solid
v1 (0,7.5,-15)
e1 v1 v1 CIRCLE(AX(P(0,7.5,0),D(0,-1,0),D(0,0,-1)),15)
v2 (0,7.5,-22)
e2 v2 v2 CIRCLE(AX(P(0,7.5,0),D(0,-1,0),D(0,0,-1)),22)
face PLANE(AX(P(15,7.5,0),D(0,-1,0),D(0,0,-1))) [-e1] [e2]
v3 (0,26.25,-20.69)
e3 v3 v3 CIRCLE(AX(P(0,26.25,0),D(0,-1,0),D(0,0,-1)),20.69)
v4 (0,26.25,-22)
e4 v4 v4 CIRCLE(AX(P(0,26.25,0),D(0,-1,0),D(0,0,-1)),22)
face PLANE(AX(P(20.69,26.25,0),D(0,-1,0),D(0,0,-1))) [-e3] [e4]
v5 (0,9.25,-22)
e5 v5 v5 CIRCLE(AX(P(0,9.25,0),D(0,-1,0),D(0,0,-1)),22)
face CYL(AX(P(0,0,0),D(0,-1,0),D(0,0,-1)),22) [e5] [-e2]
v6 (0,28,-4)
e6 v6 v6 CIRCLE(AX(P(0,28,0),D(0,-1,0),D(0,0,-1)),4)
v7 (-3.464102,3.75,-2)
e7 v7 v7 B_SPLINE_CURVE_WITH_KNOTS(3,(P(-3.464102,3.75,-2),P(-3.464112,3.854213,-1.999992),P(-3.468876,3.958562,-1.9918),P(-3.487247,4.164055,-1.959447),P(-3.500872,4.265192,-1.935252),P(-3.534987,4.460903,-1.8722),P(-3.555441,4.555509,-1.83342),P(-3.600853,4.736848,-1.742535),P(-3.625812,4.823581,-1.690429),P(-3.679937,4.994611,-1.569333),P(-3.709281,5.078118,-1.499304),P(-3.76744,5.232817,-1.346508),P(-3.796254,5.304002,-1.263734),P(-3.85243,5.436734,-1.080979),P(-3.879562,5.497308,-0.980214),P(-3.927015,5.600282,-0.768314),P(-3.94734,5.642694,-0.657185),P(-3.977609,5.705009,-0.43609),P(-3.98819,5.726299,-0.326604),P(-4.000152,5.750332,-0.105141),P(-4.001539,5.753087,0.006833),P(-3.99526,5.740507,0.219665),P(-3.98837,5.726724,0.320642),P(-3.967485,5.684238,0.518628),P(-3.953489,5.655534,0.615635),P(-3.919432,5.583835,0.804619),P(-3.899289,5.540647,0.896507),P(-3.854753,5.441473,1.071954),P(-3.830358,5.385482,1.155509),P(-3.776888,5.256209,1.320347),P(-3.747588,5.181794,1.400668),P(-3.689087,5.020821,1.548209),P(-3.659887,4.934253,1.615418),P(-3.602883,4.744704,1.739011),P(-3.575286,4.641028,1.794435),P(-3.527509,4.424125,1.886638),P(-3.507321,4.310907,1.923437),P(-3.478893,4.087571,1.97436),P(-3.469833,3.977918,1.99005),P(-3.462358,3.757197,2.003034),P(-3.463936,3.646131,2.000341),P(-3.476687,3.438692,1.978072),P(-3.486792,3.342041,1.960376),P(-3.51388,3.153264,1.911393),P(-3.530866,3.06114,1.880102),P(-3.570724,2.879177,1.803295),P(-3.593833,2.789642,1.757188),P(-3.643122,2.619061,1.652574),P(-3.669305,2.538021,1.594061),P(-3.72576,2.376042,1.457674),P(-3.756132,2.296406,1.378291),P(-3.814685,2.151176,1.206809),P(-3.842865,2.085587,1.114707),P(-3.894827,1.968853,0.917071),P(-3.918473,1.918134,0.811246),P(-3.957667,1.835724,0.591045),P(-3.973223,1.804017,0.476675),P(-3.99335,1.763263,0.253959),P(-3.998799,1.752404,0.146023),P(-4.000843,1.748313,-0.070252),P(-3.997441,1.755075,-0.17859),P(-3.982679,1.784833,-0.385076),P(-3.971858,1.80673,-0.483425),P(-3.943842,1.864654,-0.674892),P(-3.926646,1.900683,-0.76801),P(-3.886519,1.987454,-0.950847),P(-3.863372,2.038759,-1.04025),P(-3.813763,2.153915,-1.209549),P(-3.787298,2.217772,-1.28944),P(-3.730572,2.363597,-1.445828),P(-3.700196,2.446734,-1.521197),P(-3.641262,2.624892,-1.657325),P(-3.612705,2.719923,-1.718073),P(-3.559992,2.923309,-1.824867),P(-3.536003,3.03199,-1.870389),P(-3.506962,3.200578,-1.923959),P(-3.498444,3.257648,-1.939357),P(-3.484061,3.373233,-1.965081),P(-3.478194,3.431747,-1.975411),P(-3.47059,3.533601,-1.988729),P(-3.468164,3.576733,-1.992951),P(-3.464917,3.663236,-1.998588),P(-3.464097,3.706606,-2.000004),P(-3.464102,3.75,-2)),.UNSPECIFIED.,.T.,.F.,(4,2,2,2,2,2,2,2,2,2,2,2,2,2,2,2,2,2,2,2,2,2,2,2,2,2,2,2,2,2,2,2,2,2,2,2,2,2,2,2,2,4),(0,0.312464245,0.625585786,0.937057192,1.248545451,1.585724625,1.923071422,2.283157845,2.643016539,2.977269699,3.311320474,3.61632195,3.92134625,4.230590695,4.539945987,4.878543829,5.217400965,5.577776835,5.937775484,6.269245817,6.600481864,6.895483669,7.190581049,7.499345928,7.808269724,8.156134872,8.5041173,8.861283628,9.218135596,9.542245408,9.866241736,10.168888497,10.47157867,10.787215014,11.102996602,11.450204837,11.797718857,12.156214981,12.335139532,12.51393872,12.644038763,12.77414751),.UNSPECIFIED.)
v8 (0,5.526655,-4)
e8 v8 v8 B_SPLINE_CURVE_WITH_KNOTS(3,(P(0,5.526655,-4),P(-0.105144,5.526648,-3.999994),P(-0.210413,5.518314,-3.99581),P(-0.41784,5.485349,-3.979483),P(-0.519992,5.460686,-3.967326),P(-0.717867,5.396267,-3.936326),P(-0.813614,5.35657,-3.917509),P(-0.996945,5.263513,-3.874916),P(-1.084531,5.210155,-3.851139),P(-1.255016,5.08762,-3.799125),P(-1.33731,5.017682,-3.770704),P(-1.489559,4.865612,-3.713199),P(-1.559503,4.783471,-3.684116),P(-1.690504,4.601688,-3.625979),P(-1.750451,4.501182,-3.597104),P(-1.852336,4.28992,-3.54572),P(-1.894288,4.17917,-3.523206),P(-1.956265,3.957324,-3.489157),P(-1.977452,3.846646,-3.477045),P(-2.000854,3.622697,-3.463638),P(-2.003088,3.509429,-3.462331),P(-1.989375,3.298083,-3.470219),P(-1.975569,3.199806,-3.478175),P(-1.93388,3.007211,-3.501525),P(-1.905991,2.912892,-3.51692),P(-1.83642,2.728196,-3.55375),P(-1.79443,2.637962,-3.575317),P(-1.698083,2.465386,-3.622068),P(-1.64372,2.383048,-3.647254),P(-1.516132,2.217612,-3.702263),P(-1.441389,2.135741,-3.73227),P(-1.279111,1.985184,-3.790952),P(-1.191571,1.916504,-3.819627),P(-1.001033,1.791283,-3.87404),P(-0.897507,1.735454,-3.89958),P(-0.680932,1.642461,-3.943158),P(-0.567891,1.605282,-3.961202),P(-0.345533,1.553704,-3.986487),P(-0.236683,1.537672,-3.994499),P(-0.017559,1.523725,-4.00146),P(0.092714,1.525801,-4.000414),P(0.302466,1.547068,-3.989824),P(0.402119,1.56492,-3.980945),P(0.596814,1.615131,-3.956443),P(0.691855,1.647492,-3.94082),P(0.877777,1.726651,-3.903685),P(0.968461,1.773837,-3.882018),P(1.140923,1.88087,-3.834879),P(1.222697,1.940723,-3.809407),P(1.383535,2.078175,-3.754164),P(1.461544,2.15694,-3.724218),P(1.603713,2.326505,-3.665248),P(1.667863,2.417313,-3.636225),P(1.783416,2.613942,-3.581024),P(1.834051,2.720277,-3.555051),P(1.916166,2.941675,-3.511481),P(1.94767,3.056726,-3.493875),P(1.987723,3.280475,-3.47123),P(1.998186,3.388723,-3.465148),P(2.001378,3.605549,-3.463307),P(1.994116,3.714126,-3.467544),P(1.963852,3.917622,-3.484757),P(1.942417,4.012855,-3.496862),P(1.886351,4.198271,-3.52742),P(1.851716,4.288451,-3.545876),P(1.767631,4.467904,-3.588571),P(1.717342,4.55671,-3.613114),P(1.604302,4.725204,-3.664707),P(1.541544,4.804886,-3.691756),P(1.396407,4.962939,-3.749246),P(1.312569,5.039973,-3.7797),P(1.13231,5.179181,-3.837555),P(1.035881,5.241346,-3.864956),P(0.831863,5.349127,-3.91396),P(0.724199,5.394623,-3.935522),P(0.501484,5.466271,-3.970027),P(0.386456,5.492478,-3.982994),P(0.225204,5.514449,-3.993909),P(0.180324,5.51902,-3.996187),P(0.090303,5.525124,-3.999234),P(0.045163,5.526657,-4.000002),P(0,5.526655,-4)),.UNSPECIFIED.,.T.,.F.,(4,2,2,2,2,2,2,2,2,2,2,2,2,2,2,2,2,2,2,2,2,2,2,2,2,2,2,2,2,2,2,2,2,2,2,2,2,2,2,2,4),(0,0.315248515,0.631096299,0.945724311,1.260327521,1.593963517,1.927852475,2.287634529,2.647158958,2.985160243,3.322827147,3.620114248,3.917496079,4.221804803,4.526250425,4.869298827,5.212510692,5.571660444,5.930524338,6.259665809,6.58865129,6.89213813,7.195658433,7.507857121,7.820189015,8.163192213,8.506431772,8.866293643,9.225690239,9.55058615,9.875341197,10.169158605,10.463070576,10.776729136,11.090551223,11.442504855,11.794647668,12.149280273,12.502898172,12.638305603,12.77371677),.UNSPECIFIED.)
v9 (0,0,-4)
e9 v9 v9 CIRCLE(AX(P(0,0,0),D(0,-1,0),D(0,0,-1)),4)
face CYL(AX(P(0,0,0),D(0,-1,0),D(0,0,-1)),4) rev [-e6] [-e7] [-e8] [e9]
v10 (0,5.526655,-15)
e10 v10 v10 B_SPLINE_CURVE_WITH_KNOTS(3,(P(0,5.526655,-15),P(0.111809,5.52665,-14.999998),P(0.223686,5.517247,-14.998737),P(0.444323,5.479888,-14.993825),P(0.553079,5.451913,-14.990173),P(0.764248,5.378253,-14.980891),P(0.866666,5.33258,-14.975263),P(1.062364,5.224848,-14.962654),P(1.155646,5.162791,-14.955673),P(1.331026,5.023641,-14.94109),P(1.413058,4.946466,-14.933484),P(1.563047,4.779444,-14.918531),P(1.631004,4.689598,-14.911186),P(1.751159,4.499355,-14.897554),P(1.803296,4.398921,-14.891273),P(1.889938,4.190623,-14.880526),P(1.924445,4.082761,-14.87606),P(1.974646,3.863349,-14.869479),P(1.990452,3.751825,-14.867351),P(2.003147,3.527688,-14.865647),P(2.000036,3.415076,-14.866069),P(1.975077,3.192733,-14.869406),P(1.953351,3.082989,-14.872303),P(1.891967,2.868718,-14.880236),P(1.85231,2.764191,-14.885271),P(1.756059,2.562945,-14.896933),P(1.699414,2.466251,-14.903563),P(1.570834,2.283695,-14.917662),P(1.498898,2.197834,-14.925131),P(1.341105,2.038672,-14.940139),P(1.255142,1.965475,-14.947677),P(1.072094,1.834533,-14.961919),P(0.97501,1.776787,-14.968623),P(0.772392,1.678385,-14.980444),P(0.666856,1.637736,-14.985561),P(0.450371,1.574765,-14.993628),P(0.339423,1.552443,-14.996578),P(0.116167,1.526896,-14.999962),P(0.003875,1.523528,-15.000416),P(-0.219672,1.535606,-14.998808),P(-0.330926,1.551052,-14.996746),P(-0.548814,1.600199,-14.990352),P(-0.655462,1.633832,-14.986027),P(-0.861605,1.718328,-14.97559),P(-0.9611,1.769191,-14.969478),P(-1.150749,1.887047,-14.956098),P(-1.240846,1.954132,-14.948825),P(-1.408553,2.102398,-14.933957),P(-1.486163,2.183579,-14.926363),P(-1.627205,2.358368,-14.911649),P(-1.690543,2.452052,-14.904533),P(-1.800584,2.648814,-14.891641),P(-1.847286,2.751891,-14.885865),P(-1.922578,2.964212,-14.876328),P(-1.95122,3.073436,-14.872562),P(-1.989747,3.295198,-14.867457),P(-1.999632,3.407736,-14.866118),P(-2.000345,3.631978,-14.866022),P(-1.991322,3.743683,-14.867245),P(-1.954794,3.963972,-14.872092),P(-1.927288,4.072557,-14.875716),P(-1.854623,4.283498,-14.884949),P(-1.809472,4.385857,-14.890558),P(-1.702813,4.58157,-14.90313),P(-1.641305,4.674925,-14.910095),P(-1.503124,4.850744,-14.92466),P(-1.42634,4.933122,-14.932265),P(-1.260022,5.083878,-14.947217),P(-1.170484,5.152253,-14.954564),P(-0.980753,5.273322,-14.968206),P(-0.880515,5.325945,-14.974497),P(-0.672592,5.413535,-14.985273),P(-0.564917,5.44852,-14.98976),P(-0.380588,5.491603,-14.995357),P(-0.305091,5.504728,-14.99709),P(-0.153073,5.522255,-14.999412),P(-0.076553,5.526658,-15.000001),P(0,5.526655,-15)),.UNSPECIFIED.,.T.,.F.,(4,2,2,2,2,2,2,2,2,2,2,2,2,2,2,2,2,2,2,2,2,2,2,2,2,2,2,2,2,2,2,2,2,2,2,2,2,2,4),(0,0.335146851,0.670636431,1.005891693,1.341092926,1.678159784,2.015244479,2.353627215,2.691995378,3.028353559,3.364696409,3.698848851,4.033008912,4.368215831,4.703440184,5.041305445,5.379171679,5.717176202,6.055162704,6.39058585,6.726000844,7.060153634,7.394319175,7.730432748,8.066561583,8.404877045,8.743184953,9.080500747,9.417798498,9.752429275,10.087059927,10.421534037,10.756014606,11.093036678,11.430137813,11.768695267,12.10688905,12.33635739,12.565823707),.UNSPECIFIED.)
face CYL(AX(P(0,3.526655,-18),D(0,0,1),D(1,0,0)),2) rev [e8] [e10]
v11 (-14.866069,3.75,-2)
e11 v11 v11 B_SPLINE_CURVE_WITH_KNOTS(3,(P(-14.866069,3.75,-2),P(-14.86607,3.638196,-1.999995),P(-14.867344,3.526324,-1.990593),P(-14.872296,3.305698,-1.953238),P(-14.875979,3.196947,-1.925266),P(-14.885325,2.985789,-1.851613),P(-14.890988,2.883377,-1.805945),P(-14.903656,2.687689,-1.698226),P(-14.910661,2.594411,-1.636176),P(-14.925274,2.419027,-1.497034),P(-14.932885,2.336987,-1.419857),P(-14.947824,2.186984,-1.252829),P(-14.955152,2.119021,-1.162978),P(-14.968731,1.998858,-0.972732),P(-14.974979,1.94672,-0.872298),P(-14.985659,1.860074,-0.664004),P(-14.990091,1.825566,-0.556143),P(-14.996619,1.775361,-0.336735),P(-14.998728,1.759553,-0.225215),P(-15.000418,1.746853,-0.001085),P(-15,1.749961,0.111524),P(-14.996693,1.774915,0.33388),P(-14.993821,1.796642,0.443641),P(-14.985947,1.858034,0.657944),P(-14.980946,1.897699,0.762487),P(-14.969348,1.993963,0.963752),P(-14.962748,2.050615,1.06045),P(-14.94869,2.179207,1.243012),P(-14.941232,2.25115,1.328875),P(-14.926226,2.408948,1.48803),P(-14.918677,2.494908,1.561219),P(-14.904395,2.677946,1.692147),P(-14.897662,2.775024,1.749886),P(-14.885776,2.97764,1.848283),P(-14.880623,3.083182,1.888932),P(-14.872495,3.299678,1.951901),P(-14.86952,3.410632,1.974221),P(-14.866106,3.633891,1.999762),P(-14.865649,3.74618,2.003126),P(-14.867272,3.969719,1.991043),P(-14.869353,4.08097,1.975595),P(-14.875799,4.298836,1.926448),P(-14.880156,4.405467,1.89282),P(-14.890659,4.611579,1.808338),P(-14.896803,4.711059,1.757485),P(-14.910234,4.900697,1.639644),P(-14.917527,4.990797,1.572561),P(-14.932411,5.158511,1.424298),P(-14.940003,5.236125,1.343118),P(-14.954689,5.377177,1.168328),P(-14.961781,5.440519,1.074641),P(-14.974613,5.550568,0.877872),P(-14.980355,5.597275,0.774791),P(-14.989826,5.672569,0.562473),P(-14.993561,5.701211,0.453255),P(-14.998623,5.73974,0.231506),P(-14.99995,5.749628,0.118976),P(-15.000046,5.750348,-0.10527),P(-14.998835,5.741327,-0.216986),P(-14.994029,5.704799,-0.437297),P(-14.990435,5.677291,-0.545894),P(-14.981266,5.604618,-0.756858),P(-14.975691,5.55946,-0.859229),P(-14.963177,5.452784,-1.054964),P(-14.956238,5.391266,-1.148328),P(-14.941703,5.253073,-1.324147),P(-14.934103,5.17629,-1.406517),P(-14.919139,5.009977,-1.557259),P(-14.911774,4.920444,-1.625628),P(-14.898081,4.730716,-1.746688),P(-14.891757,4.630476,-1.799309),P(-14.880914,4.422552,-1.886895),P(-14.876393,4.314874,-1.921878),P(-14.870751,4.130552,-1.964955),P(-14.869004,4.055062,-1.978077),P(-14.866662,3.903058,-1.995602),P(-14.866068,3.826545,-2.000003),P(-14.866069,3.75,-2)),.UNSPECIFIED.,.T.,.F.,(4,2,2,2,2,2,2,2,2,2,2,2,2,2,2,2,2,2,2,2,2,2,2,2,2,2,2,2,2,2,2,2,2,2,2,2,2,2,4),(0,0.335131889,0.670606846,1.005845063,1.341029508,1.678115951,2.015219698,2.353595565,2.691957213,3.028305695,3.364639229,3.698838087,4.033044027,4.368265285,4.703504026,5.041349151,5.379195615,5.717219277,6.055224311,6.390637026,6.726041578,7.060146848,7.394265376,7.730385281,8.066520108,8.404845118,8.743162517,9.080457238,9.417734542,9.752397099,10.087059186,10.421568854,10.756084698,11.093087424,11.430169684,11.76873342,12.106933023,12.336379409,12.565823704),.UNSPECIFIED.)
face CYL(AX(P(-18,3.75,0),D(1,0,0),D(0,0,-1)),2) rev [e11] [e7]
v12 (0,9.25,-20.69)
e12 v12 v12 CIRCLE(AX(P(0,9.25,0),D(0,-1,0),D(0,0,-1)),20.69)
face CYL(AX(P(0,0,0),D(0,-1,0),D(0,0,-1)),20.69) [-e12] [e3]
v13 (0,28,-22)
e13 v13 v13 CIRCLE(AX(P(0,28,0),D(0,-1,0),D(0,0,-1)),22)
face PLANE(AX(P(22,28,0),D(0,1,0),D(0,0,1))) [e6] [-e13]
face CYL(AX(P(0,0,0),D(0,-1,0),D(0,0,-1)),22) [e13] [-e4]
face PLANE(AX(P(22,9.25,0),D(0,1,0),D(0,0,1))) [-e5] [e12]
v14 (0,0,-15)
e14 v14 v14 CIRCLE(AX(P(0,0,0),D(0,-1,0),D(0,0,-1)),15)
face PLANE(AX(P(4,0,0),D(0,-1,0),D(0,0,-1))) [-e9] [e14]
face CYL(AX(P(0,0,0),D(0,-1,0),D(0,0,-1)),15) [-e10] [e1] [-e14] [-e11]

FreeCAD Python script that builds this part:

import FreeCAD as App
import Part
import Sketcher
Q = App.Units.Quantity


def add_polygon(sketch, points):
    """Adds a closed chain of lines whose ends are joined by coincident constraints."""
    first, n = sketch.GeometryCount, len(points)
    for a, b in zip(points, points[1:] + points[:1]):
        sketch.addGeometry(Part.LineSegment(App.Vector(*a, 0), App.Vector(*b, 0)), False)
    for i in range(n):
        sketch.addConstraint(Sketcher.Constraint("Coincident", first + i, 2, first + (i + 1) % n, 1))

doc = App.newDocument("Part")
body = doc.addObject("PartDesign::Body", "Body")

# Sketch on XY plane
sketch1 = body.newObject("Sketcher::SketchObject", "Sketch")
sketch1.AttachmentSupport = (doc.getObject("XY_Plane"), [""])
sketch1.MapMode = "FlatFace"
add_polygon(sketch1, [(4, 0), (15, 0), (15, 7.5), (22, 7.5), (22, 9.2), (20.7, 9.2), (20.7, 26.2), (22, 26.2), (22, 28), (4, 28)])  # lines 0-9
sketch1.addConstraint(Sketcher.Constraint("Horizontal", 0))
sketch1.addConstraint(Sketcher.Constraint("Vertical", 1))
sketch1.addConstraint(Sketcher.Constraint("Horizontal", 2))
sketch1.addConstraint(Sketcher.Constraint("Vertical", 3))
sketch1.addConstraint(Sketcher.Constraint("Horizontal", 4))
sketch1.addConstraint(Sketcher.Constraint("Vertical", 5))
sketch1.addConstraint(Sketcher.Constraint("Horizontal", 6))
sketch1.addConstraint(Sketcher.Constraint("Vertical", 7))
sketch1.addConstraint(Sketcher.Constraint("Horizontal", 8))
sketch1.addConstraint(Sketcher.Constraint("Vertical", 9))
sketch1.addConstraint(Sketcher.Constraint("PointOnObject", 0, 2, -1))
sketch1.addConstraint(Sketcher.Constraint("Vertical", 3, 2, 6, 2))
sketch1.addConstraint(Sketcher.Constraint("Equal", 3, 7))
sketch1.addConstraint(Sketcher.Constraint("DistanceX", 0, 1, 0, 2, Q("11 mm")))
sketch1.addConstraint(Sketcher.Constraint("DistanceX", 2, 1, 2, 2, Q("7 mm")))
sketch1.addConstraint(Sketcher.Constraint("DistanceY", 5, 1, 5, 2, Q("17 mm")))
sketch1.addConstraint(Sketcher.Constraint("DistanceY", 9, 2, 9, 1, Q("28 mm")))
sketch1.addConstraint(Sketcher.Constraint("DistanceY", 1, 1, 1, 2, Q("7.5 mm")))
sketch1.addConstraint(Sketcher.Constraint("DistanceX", -1, 1, 0, 2, Q("15 mm")))
sketch1.addConstraint(Sketcher.Constraint("DistanceX", 4, 2, 4, 1, Q("1.31 mm")))
revolution = body.newObject("PartDesign::Revolution", "Revolution")
revolution.Profile = sketch1
revolution.ReferenceAxis = (sketch1, ["V_Axis"])
revolution.Angle = 360

# Sketch on XY plane
sketch2 = body.newObject("Sketcher::SketchObject", "Sketch001")
sketch2.AttachmentSupport = (doc.getObject("XY_Plane"), [""])
sketch2.MapMode = "FlatFace"
sketch2.addGeometry(Part.Circle(App.Vector(0, 3.5, 0), App.Vector(0, 0, 1), 2), False)
sketch2.addConstraint(Sketcher.Constraint("PointOnObject", 0, 3, -2))
sketch2.addConstraint(Sketcher.Constraint("Diameter", 0, Q("4 mm")))
sketch2.addConstraint(Sketcher.Constraint("DistanceY", -1, 1, 0, 3, Q("3.526655 mm")))
pocket1 = body.newObject("PartDesign::Pocket", "Pocket")
pocket1.Profile = sketch2
pocket1.Length = 18

# Sketch on YZ plane
sketch3 = body.newObject("Sketcher::SketchObject", "Sketch002")
sketch3.AttachmentSupport = (doc.getObject("YZ_Plane"), [""])
sketch3.MapMode = "FlatFace"
sketch3.addGeometry(Part.Circle(App.Vector(3.8, 0, 0), App.Vector(0, 0, 1), 2), False)
sketch3.addConstraint(Sketcher.Constraint("PointOnObject", 0, 3, -1))
sketch3.addConstraint(Sketcher.Constraint("Diameter", 0, Q("4 mm")))
sketch3.addConstraint(Sketcher.Constraint("DistanceX", -1, 1, 0, 3, Q("3.75 mm")))
pocket2 = body.newObject("PartDesign::Pocket", "Pocket001")
pocket2.Profile = sketch3
pocket2.Length = 18

doc.recompute()
